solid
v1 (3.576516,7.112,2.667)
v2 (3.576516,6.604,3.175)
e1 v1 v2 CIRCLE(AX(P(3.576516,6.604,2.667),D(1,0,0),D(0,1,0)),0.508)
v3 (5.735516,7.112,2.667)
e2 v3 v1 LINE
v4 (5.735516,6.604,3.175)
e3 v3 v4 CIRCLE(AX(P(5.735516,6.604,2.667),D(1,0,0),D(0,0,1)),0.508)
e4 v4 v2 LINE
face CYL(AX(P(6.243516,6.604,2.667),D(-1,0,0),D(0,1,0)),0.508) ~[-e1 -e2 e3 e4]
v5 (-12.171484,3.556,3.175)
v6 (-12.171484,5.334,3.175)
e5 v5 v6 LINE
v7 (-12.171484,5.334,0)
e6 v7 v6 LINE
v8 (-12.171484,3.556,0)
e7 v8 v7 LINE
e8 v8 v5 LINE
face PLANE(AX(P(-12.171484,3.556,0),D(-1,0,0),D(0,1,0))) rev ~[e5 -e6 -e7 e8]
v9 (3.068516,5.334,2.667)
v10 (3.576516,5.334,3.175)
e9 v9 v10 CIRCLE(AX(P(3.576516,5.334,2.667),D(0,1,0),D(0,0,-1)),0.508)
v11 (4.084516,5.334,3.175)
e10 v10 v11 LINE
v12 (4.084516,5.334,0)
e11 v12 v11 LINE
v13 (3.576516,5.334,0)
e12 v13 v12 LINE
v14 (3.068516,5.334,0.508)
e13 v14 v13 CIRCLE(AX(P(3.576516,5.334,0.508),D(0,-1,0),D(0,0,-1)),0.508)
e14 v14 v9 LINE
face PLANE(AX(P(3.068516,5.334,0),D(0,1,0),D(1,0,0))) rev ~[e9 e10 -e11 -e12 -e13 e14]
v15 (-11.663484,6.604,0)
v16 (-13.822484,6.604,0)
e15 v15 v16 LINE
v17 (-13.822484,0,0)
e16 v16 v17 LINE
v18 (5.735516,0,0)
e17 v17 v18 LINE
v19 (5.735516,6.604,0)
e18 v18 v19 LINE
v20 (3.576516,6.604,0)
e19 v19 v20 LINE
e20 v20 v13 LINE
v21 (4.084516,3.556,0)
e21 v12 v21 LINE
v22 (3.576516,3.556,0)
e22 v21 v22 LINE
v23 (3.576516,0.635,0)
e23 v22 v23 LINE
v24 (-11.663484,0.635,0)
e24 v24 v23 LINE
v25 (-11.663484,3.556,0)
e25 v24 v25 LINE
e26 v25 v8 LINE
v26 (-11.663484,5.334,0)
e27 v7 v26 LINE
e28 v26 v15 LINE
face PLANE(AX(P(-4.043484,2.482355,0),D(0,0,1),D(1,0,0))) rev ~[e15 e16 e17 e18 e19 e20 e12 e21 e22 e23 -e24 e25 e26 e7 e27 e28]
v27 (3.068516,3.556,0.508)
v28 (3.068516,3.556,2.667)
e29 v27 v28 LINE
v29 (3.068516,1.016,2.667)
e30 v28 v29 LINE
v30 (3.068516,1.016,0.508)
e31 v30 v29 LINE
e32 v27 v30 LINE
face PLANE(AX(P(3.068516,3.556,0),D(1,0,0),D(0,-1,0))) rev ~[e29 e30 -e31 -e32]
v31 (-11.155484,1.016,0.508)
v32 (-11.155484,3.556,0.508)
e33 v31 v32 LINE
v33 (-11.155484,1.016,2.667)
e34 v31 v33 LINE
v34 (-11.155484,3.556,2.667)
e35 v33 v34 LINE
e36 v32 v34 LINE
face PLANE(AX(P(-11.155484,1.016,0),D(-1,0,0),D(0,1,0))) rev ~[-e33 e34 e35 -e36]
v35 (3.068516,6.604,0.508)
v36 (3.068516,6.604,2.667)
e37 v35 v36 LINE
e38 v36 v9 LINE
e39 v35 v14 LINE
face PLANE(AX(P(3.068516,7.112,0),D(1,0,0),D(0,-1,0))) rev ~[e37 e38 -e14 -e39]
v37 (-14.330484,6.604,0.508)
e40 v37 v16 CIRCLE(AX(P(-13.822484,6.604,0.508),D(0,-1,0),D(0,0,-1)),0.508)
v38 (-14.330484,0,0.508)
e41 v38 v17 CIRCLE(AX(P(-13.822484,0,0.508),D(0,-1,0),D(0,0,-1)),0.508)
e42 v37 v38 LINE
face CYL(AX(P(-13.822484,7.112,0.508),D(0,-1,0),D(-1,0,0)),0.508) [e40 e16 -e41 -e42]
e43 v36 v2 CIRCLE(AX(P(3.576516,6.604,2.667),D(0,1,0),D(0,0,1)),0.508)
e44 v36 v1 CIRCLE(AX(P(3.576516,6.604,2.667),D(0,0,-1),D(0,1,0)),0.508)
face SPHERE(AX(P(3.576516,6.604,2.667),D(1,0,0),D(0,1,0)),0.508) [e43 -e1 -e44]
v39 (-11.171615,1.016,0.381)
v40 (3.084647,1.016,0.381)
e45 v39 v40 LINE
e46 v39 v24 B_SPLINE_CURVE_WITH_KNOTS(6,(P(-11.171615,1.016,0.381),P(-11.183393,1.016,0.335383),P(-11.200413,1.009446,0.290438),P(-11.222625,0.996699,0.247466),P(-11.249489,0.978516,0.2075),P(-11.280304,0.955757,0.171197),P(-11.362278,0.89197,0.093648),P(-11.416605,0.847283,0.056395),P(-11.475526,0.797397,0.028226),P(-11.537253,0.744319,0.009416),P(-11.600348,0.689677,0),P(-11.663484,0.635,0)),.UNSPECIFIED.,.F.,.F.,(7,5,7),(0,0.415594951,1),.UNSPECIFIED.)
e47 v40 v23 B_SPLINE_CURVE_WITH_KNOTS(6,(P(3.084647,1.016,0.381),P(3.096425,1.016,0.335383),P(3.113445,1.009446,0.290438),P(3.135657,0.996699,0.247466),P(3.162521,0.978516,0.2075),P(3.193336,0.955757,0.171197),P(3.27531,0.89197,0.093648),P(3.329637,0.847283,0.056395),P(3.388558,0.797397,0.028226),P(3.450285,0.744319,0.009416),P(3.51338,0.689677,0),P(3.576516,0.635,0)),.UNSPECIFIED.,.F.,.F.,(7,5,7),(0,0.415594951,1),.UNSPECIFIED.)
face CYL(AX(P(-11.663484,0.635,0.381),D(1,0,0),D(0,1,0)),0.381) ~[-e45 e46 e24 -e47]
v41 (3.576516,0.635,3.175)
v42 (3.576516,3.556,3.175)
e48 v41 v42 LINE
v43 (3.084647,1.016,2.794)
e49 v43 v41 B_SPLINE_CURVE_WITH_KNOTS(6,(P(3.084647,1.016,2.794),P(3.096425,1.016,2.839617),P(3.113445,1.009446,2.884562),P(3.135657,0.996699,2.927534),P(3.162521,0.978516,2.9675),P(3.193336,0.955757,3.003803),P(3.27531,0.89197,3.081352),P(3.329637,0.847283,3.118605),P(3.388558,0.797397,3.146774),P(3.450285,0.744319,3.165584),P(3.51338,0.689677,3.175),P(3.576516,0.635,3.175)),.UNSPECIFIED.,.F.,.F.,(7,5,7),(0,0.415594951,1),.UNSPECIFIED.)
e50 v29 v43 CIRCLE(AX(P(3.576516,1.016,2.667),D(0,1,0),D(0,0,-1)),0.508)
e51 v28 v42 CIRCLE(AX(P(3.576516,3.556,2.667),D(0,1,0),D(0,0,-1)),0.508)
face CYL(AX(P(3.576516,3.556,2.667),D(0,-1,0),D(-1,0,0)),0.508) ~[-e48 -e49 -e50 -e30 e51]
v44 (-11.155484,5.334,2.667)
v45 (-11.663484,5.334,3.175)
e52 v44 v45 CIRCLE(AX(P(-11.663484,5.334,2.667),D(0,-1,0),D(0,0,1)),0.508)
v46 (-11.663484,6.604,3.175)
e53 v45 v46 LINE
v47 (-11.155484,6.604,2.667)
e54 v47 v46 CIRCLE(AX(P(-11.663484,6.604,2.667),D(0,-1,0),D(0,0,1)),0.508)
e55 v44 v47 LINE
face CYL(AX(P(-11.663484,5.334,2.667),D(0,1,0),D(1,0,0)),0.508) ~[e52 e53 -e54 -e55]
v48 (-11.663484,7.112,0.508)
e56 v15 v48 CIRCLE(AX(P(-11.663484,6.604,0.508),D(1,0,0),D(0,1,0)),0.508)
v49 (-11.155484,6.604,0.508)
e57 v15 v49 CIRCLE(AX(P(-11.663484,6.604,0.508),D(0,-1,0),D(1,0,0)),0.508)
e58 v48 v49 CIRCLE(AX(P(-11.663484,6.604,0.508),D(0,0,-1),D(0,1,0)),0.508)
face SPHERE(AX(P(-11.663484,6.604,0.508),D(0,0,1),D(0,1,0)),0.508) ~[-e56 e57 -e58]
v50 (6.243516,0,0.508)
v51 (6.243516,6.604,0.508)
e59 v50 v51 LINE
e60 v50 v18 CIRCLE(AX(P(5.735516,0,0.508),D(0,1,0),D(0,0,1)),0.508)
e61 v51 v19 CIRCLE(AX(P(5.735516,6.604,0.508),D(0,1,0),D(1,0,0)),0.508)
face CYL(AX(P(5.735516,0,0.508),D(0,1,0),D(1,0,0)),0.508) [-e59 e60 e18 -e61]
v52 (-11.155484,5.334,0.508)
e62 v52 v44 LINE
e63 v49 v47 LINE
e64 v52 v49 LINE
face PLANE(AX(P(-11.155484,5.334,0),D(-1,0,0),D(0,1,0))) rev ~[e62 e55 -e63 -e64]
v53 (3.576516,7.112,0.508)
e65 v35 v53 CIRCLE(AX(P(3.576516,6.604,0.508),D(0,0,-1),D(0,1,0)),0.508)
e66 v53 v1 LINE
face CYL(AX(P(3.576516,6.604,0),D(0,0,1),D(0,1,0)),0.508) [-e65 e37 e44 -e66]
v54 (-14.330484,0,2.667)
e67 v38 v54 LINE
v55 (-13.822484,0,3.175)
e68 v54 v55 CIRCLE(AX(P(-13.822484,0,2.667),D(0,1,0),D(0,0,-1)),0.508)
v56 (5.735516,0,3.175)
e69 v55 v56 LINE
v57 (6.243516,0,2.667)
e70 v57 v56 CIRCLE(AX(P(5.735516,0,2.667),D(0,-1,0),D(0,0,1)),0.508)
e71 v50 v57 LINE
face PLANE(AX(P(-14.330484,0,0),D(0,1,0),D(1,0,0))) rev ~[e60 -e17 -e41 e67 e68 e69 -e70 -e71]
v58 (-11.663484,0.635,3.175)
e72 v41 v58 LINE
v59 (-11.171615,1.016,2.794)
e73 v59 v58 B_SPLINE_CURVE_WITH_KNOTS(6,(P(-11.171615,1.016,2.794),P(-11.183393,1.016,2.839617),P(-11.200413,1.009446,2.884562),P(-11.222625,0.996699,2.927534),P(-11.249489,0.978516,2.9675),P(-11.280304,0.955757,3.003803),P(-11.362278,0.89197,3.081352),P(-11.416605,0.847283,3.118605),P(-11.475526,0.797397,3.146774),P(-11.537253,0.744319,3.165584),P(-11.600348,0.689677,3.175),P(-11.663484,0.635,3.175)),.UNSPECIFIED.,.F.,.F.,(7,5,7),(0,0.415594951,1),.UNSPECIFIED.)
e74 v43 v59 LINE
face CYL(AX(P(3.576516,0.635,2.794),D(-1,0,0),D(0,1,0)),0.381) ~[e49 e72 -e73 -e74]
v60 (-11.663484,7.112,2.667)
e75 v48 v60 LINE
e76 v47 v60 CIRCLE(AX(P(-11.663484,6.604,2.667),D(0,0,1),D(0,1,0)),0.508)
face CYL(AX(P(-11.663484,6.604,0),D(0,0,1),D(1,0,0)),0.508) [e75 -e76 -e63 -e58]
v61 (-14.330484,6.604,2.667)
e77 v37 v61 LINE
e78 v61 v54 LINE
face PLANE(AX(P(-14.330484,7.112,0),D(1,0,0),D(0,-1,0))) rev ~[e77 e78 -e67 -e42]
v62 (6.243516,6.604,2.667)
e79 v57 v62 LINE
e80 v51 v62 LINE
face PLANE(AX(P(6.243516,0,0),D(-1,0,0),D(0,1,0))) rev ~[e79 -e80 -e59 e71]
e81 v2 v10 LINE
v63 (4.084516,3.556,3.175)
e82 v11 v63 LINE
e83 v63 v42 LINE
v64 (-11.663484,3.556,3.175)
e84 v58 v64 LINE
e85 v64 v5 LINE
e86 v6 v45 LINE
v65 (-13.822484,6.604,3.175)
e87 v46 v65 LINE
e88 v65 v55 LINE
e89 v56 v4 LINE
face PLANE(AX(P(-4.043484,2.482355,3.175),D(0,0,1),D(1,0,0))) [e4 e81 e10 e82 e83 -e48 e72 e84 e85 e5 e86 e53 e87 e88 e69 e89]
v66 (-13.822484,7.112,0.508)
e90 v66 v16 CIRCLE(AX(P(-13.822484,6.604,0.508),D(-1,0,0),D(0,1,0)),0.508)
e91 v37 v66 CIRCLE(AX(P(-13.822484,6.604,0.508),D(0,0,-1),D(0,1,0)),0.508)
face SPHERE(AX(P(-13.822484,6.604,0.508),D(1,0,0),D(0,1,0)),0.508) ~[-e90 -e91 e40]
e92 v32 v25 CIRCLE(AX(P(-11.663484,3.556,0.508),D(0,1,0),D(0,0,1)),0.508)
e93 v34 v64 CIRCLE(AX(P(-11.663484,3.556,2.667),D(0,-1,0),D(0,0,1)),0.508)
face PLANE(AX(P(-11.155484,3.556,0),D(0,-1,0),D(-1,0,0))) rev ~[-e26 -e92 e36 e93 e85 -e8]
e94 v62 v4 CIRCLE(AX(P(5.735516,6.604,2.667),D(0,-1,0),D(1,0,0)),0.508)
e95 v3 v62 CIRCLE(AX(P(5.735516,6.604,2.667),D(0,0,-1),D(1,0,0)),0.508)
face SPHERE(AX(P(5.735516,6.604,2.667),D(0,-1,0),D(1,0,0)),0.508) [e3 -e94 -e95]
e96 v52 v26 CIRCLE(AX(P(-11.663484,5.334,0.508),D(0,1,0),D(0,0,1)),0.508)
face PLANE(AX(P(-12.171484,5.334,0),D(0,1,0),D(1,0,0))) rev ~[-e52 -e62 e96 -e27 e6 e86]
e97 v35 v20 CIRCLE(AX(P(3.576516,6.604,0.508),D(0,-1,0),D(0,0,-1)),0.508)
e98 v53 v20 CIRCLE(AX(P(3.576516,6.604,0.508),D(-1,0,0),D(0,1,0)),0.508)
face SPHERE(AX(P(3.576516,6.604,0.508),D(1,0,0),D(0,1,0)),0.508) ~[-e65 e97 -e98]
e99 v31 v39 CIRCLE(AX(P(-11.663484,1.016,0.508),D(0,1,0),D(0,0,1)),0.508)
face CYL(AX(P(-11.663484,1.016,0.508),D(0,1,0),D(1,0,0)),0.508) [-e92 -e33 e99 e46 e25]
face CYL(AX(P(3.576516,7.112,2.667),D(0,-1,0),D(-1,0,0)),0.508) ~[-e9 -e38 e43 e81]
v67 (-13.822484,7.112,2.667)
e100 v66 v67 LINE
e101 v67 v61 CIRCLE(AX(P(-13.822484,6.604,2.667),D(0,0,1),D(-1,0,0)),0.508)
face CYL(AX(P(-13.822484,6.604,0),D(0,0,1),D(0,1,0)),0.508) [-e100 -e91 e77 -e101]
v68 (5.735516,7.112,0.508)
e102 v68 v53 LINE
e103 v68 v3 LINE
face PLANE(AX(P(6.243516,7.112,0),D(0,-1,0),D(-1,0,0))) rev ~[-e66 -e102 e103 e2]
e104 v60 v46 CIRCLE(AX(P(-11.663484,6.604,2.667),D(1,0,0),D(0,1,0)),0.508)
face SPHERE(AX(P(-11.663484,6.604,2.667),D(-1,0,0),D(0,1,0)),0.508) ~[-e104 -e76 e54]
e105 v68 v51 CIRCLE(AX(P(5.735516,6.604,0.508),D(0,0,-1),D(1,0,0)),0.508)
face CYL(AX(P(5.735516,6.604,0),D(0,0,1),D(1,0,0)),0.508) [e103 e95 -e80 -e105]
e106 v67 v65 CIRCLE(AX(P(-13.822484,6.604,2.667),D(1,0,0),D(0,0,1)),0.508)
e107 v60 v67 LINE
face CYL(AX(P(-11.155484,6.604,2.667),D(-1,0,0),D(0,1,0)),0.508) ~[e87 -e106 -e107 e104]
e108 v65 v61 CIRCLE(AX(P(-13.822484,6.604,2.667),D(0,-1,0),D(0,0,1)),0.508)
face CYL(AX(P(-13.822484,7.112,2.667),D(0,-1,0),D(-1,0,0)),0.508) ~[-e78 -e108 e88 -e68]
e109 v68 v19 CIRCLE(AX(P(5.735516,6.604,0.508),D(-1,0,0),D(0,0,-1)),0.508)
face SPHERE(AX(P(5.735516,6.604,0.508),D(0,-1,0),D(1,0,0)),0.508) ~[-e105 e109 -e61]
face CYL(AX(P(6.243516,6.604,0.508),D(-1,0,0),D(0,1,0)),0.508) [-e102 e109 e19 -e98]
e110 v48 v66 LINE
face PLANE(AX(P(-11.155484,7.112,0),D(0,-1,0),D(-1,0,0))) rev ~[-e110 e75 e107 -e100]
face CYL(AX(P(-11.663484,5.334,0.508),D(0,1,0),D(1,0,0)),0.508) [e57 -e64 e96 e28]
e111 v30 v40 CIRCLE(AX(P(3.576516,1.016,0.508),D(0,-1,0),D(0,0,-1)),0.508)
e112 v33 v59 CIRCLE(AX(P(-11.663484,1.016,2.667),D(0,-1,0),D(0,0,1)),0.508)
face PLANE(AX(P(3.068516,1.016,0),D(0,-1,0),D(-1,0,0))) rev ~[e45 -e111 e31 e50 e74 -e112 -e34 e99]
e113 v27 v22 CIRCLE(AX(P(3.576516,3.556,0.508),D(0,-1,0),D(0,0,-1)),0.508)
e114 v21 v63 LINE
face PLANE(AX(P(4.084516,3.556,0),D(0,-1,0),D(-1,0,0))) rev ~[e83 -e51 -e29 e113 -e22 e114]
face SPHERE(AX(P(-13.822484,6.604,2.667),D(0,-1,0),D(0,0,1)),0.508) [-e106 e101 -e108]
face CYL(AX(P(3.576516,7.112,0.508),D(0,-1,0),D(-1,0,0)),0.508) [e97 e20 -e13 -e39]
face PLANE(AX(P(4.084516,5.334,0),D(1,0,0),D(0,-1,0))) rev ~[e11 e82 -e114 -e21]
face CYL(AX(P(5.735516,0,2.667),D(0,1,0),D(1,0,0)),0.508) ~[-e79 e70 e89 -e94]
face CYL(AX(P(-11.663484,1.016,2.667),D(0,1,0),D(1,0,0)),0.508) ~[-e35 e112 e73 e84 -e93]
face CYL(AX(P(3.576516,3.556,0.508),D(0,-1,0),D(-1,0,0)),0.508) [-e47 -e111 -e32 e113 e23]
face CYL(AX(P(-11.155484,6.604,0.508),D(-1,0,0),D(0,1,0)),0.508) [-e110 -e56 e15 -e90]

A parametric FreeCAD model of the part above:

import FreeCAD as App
import Part
import Sketcher

V = App.Vector
Q = App.Units.Quantity


def edges_at(feature, points):
    """Names of the edges that pass closest to the given points."""
    edges = feature.Shape.Edges
    near = lambda p: min(range(len(edges)), key=lambda i: edges[i].distToShape(Part.Vertex(*p))[0])
    return sorted({f"Edge{near(p) + 1}" for p in points})


def add_polygon(sketch, points):
    """Adds a closed chain of lines whose ends are joined by coincident constraints."""
    first, n = sketch.GeometryCount, len(points)
    for a, b in zip(points, points[1:] + points[:1]):
        sketch.addGeometry(Part.LineSegment(App.Vector(*a, 0), App.Vector(*b, 0)), False)
    for i in range(n):
        sketch.addConstraint(Sketcher.Constraint("Coincident", first + i, 2, first + (i + 1) % n, 1))

doc = App.newDocument("Part")
params = doc.addObject("Spreadsheet::Sheet", "Params")
for row, (alias, value) in enumerate([
    ("sketch1_height", "0.1 in"),
    ("sketch1_width", "0.81 in"),
    ("sketch1_width2", "0.04 in"),
    ("sketch1_width3", "0.56 in"),
    ("sketch1_height2", "0.28 in"),
    ("pad1_length", "0.125 in"),
    ("fillet_radius", "0.02 in"),
    ("fillet2_radius", "0.015 in"),
], start=1):
    params.set(f"A{row}", alias)
    params.set(f"B{row}", "=" + value)
    params.setAlias(f"B{row}", alias)

body = doc.addObject("PartDesign::Body", "Body")

# Sketch on XY plane
sketch1 = body.newObject("Sketcher::SketchObject", "Sketch")
sketch1.AttachmentSupport = (doc.getObject("XY_Plane"), [""])
sketch1.MapMode = "FlatFace"
add_polygon(sketch1, [(-14.3, 0), (6.2, 0), (6.2, 7.1), (3.1, 7.1), (3.1, 5.3), (4.1, 5.3), (4.1, 3.6), (3.1, 3.6), (3.1, 1), (-11.2, 1), (-11.2, 3.6), (-12.2, 3.6), (-12.2, 5.3), (-11.2, 5.3), (-11.2, 7.1), (-14.3, 7.1)])  # lines 0-15
sketch1.addConstraint([
    Sketcher.Constraint("Horizontal", 0),
    Sketcher.Constraint("Vertical", 1),
    Sketcher.Constraint("Horizontal", 2),
    Sketcher.Constraint("Vertical", 3),
    Sketcher.Constraint("Horizontal", 4),
    Sketcher.Constraint("Vertical", 5),
    Sketcher.Constraint("Horizontal", 6),
    Sketcher.Constraint("Vertical", 7),
    Sketcher.Constraint("Horizontal", 8),
    Sketcher.Constraint("Vertical", 9),
    Sketcher.Constraint("Horizontal", 10),
    Sketcher.Constraint("Vertical", 11),
    Sketcher.Constraint("Horizontal", 12),
    Sketcher.Constraint("Vertical", 13),
    Sketcher.Constraint("Horizontal", 14),
    Sketcher.Constraint("Vertical", 15),
    Sketcher.Constraint("PointOnObject", 0, 2, -1),
    Sketcher.Constraint("Horizontal", 6, 2, 9, 2),
    Sketcher.Constraint("Horizontal", 4, 2, 11, 2),
    Sketcher.Constraint("Horizontal", 2, 2, 13, 2),
    Sketcher.Constraint("Vertical", 3, 2, 6, 2),
    Sketcher.Constraint("Vertical", 9, 2, 12, 2),
    Sketcher.Constraint("Equal", 6, 10),
    Sketcher.Constraint("Equal", 2, 14),
    Sketcher.Constraint("Equal", 3, 5),
    Sketcher.Constraint("DistanceY", 7, 2, 7, 1, Q("0.1 in")),
    Sketcher.Constraint("DistanceX", 0, 1, 0, 2, Q("0.81 in")),
    Sketcher.Constraint("DistanceX", 4, 1, 4, 2, Q("0.04 in")),
    Sketcher.Constraint("DistanceX", 8, 2, 8, 1, Q("0.56 in")),
    Sketcher.Constraint("DistanceY", 1, 1, 1, 2, Q("0.28 in")),
    Sketcher.Constraint("DistanceY", 3, 2, 3, 1, Q("0.07 in")),
    Sketcher.Constraint("DistanceX", -1, 1, 0, 2, Q("6.243516 mm")),
])
sketch1.setExpression("Constraints[41]", "Params.sketch1_height")
sketch1.setExpression("Constraints[42]", "Params.sketch1_width")
sketch1.setExpression("Constraints[43]", "Params.sketch1_width2")
sketch1.setExpression("Constraints[44]", "Params.sketch1_width3")
sketch1.setExpression("Constraints[45]", "Params.sketch1_height2")
pad1 = body.newObject("PartDesign::Pad", "Pad")
pad1.Profile = sketch1
pad1.setExpression("Length", "Params.pad1_length")
doc.recompute()

fillet = body.newObject("PartDesign::Fillet", "Fillet")
fillet.Base = (pad1, edges_at(pad1, [
    (-11.155, 2.286, 3.175),
    (-11.155, 2.286, 0),
    (3.069, 2.286, 3.175),
    (6.244, 3.556, 3.175),
    (6.244, 3.556, 0),
    (-14.33, 3.556, 3.175),
    (-12.743, 7.112, 3.175),
    (6.244, 7.112, 1.587),
    (4.656, 7.112, 3.175),
    (4.656, 7.112, 0),
    (3.069, 7.112, 1.587),
    (-11.155, 7.112, 1.587),
    (-12.743, 7.112, 0),
    (-14.33, 7.112, 1.587),
    (-11.155, 6.223, 3.175),
    (-11.155, 6.223, 0),
    (3.069, 6.223, 3.175),
    (3.069, 6.223, 0),
    (3.069, 2.286, 0),
    (-14.33, 3.556, 0),
]))
fillet.setExpression("Radius", "Params.fillet_radius")
doc.recompute()

fillet2 = body.newObject("PartDesign::Fillet", "Fillet001")
fillet2.Base = (fillet, edges_at(fillet, [(-4.043, 1.016, 0), (-4.043, 1.016, 3.175)]))
fillet2.setExpression("Radius", "Params.fillet2_radius")

doc.recompute()
